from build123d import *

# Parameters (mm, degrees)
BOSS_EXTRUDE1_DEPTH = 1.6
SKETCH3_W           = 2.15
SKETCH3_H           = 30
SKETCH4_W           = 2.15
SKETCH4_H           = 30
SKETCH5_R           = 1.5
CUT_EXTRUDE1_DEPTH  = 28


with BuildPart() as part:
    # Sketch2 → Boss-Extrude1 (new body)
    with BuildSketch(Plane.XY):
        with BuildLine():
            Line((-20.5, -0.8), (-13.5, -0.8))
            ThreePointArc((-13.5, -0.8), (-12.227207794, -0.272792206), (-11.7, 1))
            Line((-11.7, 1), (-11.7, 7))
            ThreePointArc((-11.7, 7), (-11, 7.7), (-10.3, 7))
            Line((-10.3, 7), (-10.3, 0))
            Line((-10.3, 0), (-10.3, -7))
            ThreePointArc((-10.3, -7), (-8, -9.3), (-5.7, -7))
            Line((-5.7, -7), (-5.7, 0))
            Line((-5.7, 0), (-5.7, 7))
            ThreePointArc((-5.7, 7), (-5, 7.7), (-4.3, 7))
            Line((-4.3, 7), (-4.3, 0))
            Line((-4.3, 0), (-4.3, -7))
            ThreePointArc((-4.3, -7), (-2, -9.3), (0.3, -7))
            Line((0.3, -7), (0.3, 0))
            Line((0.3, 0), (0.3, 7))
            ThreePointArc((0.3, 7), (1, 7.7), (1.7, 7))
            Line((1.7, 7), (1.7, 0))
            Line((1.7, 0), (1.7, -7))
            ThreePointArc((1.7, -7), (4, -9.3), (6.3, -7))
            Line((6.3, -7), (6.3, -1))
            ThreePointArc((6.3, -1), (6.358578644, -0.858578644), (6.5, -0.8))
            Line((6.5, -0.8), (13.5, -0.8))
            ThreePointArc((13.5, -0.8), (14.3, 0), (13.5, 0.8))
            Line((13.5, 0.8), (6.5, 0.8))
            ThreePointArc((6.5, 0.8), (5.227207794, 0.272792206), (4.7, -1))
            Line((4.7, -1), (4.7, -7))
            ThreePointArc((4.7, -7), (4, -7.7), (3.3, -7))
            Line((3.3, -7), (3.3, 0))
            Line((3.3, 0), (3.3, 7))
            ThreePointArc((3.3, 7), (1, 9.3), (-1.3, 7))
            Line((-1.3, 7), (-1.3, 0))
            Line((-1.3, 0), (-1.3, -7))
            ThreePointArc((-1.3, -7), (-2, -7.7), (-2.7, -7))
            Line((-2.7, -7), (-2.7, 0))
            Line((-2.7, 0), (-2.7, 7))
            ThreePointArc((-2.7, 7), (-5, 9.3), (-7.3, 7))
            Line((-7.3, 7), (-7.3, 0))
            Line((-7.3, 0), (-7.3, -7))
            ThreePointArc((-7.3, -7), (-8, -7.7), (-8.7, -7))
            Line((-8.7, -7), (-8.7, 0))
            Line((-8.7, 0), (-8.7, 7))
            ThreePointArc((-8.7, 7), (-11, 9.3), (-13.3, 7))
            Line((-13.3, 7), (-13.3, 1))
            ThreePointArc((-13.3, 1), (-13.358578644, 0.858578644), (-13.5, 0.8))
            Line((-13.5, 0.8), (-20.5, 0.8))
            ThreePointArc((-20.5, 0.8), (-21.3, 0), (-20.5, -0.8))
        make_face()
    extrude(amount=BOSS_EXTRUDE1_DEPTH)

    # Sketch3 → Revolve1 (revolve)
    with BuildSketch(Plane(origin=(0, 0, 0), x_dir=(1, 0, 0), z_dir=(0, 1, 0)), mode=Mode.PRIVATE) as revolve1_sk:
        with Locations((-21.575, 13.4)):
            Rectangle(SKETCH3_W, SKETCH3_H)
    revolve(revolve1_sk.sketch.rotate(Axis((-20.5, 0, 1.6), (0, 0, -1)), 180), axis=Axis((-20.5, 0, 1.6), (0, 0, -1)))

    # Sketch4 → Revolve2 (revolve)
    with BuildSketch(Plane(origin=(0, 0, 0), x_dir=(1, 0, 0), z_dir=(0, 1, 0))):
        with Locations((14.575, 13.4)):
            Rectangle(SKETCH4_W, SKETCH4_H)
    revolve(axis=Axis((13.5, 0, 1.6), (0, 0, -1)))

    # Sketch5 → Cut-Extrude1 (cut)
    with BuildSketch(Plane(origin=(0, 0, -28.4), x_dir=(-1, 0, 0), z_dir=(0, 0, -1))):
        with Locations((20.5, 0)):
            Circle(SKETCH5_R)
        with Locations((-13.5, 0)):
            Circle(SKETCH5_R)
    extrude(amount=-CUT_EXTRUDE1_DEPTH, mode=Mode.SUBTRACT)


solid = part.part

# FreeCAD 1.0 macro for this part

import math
import FreeCAD as App
import Part
import Sketcher

V = App.Vector


def add_polygon(sketch, points):
    """Adds a closed chain of lines whose ends are joined by coincident constraints."""
    first, n = sketch.GeometryCount, len(points)
    for a, b in zip(points, points[1:] + points[:1]):
        sketch.addGeometry(Part.LineSegment(App.Vector(*a, 0), App.Vector(*b, 0)), False)
    for i in range(n):
        sketch.addConstraint(Sketcher.Constraint("Coincident", first + i, 2, first + (i + 1) % n, 1))

doc = App.newDocument("Part")
body = doc.addObject("PartDesign::Body", "Body")

# Sketch on XY plane
sketch1 = body.newObject("Sketcher::SketchObject", "Sketch")
sketch1.AttachmentSupport = (doc.getObject("XY_Plane"), [""])
sketch1.MapMode = "FlatFace"
sketch1.addGeometry(Part.LineSegment(V(-20.5, -0.8, 0), V(-13.5, -0.8, 0)), False)
sketch1.addGeometry(Part.ArcOfCircle(Part.Circle(V(-13.5, 1, 0), V(0, 0, 1), 1.8), math.radians(-90), math.radians(0)), False)
sketch1.addGeometry(Part.LineSegment(V(-11.7, 1, 0), V(-11.7, 7, 0)), False)
sketch1.addGeometry(Part.ArcOfCircle(Part.Circle(V(-11, 7, 0), V(0, 0, 1), 0.7), math.radians(0), math.radians(180)), False)
sketch1.addGeometry(Part.LineSegment(V(-10.3, 7, 0), V(-10.3, -7, 0)), False)
sketch1.addGeometry(Part.ArcOfCircle(Part.Circle(V(-8, -7, 0), V(0, 0, 1), 2.3), math.radians(180), math.radians(360)), False)
sketch1.addGeometry(Part.LineSegment(V(-5.7, -7, 0), V(-5.7, 7, 0)), False)
sketch1.addGeometry(Part.ArcOfCircle(Part.Circle(V(-5, 7, 0), V(0, 0, 1), 0.7), math.radians(0), math.radians(180)), False)
sketch1.addGeometry(Part.LineSegment(V(-4.3, 7, 0), V(-4.3, -7, 0)), False)
sketch1.addGeometry(Part.ArcOfCircle(Part.Circle(V(-2, -7, 0), V(0, 0, 1), 2.3), math.radians(180), math.radians(360)), False)
sketch1.addGeometry(Part.LineSegment(V(0.3, -7, 0), V(0.3, 7, 0)), False)
sketch1.addGeometry(Part.ArcOfCircle(Part.Circle(V(1, 7, 0), V(0, 0, 1), 0.7), math.radians(0), math.radians(180)), False)
sketch1.addGeometry(Part.LineSegment(V(1.7, 7, 0), V(1.7, -7, 0)), False)
sketch1.addGeometry(Part.ArcOfCircle(Part.Circle(V(4, -7, 0), V(0, 0, 1), 2.3), math.radians(180), math.radians(360)), False)
sketch1.addGeometry(Part.LineSegment(V(6.3, -7, 0), V(6.3, -1, 0)), False)
sketch1.addGeometry(Part.ArcOfCircle(Part.Circle(V(6.5, -1, 0), V(0, 0, 1), 0.2), math.radians(90), math.radians(180)), False)
sketch1.addGeometry(Part.LineSegment(V(6.5, -0.8, 0), V(13.5, -0.8, 0)), False)
sketch1.addGeometry(Part.ArcOfCircle(Part.Circle(V(13.5, 0, 0), V(0, 0, 1), 0.8), math.radians(-90), math.radians(90)), False)
sketch1.addGeometry(Part.LineSegment(V(13.5, 0.8, 0), V(6.5, 0.8, 0)), False)
sketch1.addGeometry(Part.ArcOfCircle(Part.Circle(V(6.5, -1, 0), V(0, 0, 1), 1.8), math.radians(90), math.radians(180)), False)
sketch1.addGeometry(Part.LineSegment(V(4.7, -1, 0), V(4.7, -7, 0)), False)
sketch1.addGeometry(Part.ArcOfCircle(Part.Circle(V(4, -7, 0), V(0, 0, 1), 0.7), math.radians(180), math.radians(360)), False)
sketch1.addGeometry(Part.LineSegment(V(3.3, -7, 0), V(3.3, 7, 0)), False)
sketch1.addGeometry(Part.ArcOfCircle(Part.Circle(V(1, 7, 0), V(0, 0, 1), 2.3), math.radians(0), math.radians(180)), False)
sketch1.addGeometry(Part.LineSegment(V(-1.3, 7, 0), V(-1.3, -7, 0)), False)
sketch1.addGeometry(Part.ArcOfCircle(Part.Circle(V(-2, -7, 0), V(0, 0, 1), 0.7), math.radians(180), math.radians(360)), False)
sketch1.addGeometry(Part.LineSegment(V(-2.7, -7, 0), V(-2.7, 7, 0)), False)
sketch1.addGeometry(Part.ArcOfCircle(Part.Circle(V(-5, 7, 0), V(0, 0, 1), 2.3), math.radians(0), math.radians(180)), False)
sketch1.addGeometry(Part.LineSegment(V(-7.3, 7, 0), V(-7.3, -7, 0)), False)
sketch1.addGeometry(Part.ArcOfCircle(Part.Circle(V(-8, -7, 0), V(0, 0, 1), 0.7), math.radians(180), math.radians(360)), False)
sketch1.addGeometry(Part.LineSegment(V(-8.7, -7, 0), V(-8.7, 7, 0)), False)
sketch1.addGeometry(Part.ArcOfCircle(Part.Circle(V(-11, 7, 0), V(0, 0, 1), 2.3), math.radians(0), math.radians(180)), False)
sketch1.addGeometry(Part.LineSegment(V(-13.3, 7, 0), V(-13.3, 1, 0)), False)
sketch1.addGeometry(Part.ArcOfCircle(Part.Circle(V(-13.5, 1, 0), V(0, 0, 1), 0.2), math.radians(-90), math.radians(0)), False)
sketch1.addGeometry(Part.LineSegment(V(-13.5, 0.8, 0), V(-20.5, 0.8, 0)), False)
sketch1.addGeometry(Part.ArcOfCircle(Part.Circle(V(-20.5, 0, 0), V(0, 0, 1), 0.8), math.radians(90), math.radians(270)), False)
sketch1.addConstraint(Sketcher.Constraint("Tangent", 0, 2, 1, 1))
sketch1.addConstraint(Sketcher.Constraint("Tangent", 1, 2, 2, 1))
sketch1.addConstraint(Sketcher.Constraint("Tangent", 2, 2, 3, 2))
sketch1.addConstraint(Sketcher.Constraint("Tangent", 3, 1, 4, 1))
sketch1.addConstraint(Sketcher.Constraint("Tangent", 4, 2, 5, 1))
sketch1.addConstraint(Sketcher.Constraint("Tangent", 5, 2, 6, 1))
sketch1.addConstraint(Sketcher.Constraint("Tangent", 6, 2, 7, 2))
sketch1.addConstraint(Sketcher.Constraint("Tangent", 7, 1, 8, 1))
sketch1.addConstraint(Sketcher.Constraint("Tangent", 8, 2, 9, 1))
sketch1.addConstraint(Sketcher.Constraint("Tangent", 9, 2, 10, 1))
sketch1.addConstraint(Sketcher.Constraint("Tangent", 10, 2, 11, 2))
sketch1.addConstraint(Sketcher.Constraint("Tangent", 11, 1, 12, 1))
sketch1.addConstraint(Sketcher.Constraint("Tangent", 12, 2, 13, 1))
sketch1.addConstraint(Sketcher.Constraint("Tangent", 13, 2, 14, 1))
sketch1.addConstraint(Sketcher.Constraint("Tangent", 14, 2, 15, 2))
sketch1.addConstraint(Sketcher.Constraint("Tangent", 15, 1, 16, 1))
sketch1.addConstraint(Sketcher.Constraint("Tangent", 16, 2, 17, 1))
sketch1.addConstraint(Sketcher.Constraint("Tangent", 17, 2, 18, 1))
sketch1.addConstraint(Sketcher.Constraint("Tangent", 18, 2, 19, 1))
sketch1.addConstraint(Sketcher.Constraint("Tangent", 19, 2, 20, 1))
sketch1.addConstraint(Sketcher.Constraint("Tangent", 20, 2, 21, 2))
sketch1.addConstraint(Sketcher.Constraint("Tangent", 21, 1, 22, 1))
sketch1.addConstraint(Sketcher.Constraint("Tangent", 22, 2, 23, 1))
sketch1.addConstraint(Sketcher.Constraint("Tangent", 23, 2, 24, 1))
sketch1.addConstraint(Sketcher.Constraint("Tangent", 24, 2, 25, 2))
sketch1.addConstraint(Sketcher.Constraint("Tangent", 25, 1, 26, 1))
sketch1.addConstraint(Sketcher.Constraint("Tangent", 26, 2, 27, 1))
sketch1.addConstraint(Sketcher.Constraint("Tangent", 27, 2, 28, 1))
sketch1.addConstraint(Sketcher.Constraint("Tangent", 28, 2, 29, 2))
sketch1.addConstraint(Sketcher.Constraint("Tangent", 29, 1, 30, 1))
sketch1.addConstraint(Sketcher.Constraint("Tangent", 30, 2, 31, 1))
sketch1.addConstraint(Sketcher.Constraint("Tangent", 31, 2, 32, 1))
sketch1.addConstraint(Sketcher.Constraint("Tangent", 32, 2, 33, 2))
sketch1.addConstraint(Sketcher.Constraint("Tangent", 33, 1, 34, 1))
sketch1.addConstraint(Sketcher.Constraint("Tangent", 34, 2, 35, 1))
sketch1.addConstraint(Sketcher.Constraint("Tangent", 35, 2, 0, 1))
sketch1.addConstraint(Sketcher.Constraint("Horizontal", 0))
sketch1.addConstraint(Sketcher.Constraint("Vertical", 2))
sketch1.addConstraint(Sketcher.Constraint("Vertical", 4))
sketch1.addConstraint(Sketcher.Constraint("Vertical", 6))
sketch1.addConstraint(Sketcher.Constraint("Vertical", 8))
sketch1.addConstraint(Sketcher.Constraint("Vertical", 10))
sketch1.addConstraint(Sketcher.Constraint("Vertical", 12))
sketch1.addConstraint(Sketcher.Constraint("Vertical", 14))
sketch1.addConstraint(Sketcher.Constraint("Horizontal", 16))
sketch1.addConstraint(Sketcher.Constraint("Horizontal", 18))
sketch1.addConstraint(Sketcher.Constraint("Vertical", 20))
sketch1.addConstraint(Sketcher.Constraint("Vertical", 22))
sketch1.addConstraint(Sketcher.Constraint("Vertical", 24))
sketch1.addConstraint(Sketcher.Constraint("Vertical", 26))
sketch1.addConstraint(Sketcher.Constraint("Vertical", 28))
sketch1.addConstraint(Sketcher.Constraint("Vertical", 30))
sketch1.addConstraint(Sketcher.Constraint("Vertical", 32))
sketch1.addConstraint(Sketcher.Constraint("Horizontal", 34))
sketch1.addConstraint(Sketcher.Constraint("Coincident", 19, 3, 15, 3))
sketch1.addConstraint(Sketcher.Constraint("Coincident", 21, 3, 13, 3))
sketch1.addConstraint(Sketcher.Constraint("Coincident", 23, 3, 11, 3))
sketch1.addConstraint(Sketcher.Constraint("Coincident", 25, 3, 9, 3))
sketch1.addConstraint(Sketcher.Constraint("Coincident", 27, 3, 7, 3))
sketch1.addConstraint(Sketcher.Constraint("Coincident", 29, 3, 5, 3))
sketch1.addConstraint(Sketcher.Constraint("Coincident", 31, 3, 3, 3))
sketch1.addConstraint(Sketcher.Constraint("Coincident", 33, 3, 1, 3))
sketch1.addConstraint(Sketcher.Constraint("Equal", 3, 7))
sketch1.addConstraint(Sketcher.Constraint("Equal", 5, 9))
sketch1.addConstraint(Sketcher.Constraint("Equal", 7, 11))
sketch1.addConstraint(Sketcher.Constraint("Equal", 9, 13))
sketch1.addConstraint(Sketcher.Constraint("Equal", 1, 19))
sketch1.addConstraint(Sketcher.Constraint("Equal", 11, 21))
sketch1.addConstraint(Sketcher.Constraint("Symmetric", 0, 2, 17, 2, -1, 1))
sketch1.addConstraint(Sketcher.Constraint("PointOnObject", 17, 3, -1))
sketch1.addConstraint(Sketcher.Constraint("Horizontal", 3, 3, 7, 3))
sketch1.addConstraint(Sketcher.Constraint("Horizontal", 5, 3, 9, 3))
sketch1.addConstraint(Sketcher.Constraint("Horizontal", 7, 3, 11, 3))
sketch1.addConstraint(Sketcher.Constraint("Horizontal", 9, 3, 13, 3))
sketch1.addConstraint(Sketcher.Constraint("Equal", 0, 16))
sketch1.addConstraint(Sketcher.Constraint("Equal", 2, 14))
sketch1.addConstraint(Sketcher.Constraint("Radius", 1, 1.8))
sketch1.addConstraint(Sketcher.Constraint("Radius", 3, 0.7))
sketch1.addConstraint(Sketcher.Constraint("Radius", 5, 2.3))
sketch1.addConstraint(Sketcher.Constraint("DistanceX", 0, 1, 0, 2, 7.0))
sketch1.addConstraint(Sketcher.Constraint("DistanceY", 2, 1, 2, 2, 6.0))
pad1 = body.newObject("PartDesign::Pad", "Pad")
pad1.Profile = sketch1
pad1.Length = 1.6

# Sketch on XZ plane
sketch2 = body.newObject("Sketcher::SketchObject", "Sketch001")
sketch2.AttachmentSupport = (doc.getObject("XZ_Plane"), [""])
sketch2.MapMode = "FlatFace"
add_polygon(sketch2, [(-22.6, -28.4), (-22.6, 1.6), (-20.5, 1.6), (-20.5, -28.4)])  # lines 0-3
sketch2.addGeometry(Part.LineSegment(V(-20.5, 1.6, 0), V(-20.5, -28.4, 0)), True)  # axis
sketch2.addConstraint(Sketcher.Constraint("Vertical", 0))
sketch2.addConstraint(Sketcher.Constraint("Horizontal", 1))
sketch2.addConstraint(Sketcher.Constraint("Vertical", 2))
sketch2.addConstraint(Sketcher.Constraint("Horizontal", 3))
sketch2.addConstraint(Sketcher.Constraint("Vertical", 4))
sketch2.addConstraint(Sketcher.Constraint("Coincident", 4, 1, 1, 2))
sketch2.addConstraint(Sketcher.Constraint("Horizontal", 3, 2, 4, 2))
sketch2.addConstraint(Sketcher.Constraint("DistanceY", 0, 1, 0, 2, 30.0))
sketch2.addConstraint(Sketcher.Constraint("DistanceX", 1, 1, 1, 2, 2.15))
sketch2.addConstraint(Sketcher.Constraint("DistanceY", -1, 1, 0, 2, 1.6))
sketch2.addConstraint(Sketcher.Constraint("DistanceX", 1, 2, -1, 1, 20.5))
revolution = body.newObject("PartDesign::Revolution", "Revolution")
revolution.Profile = sketch2
revolution.ReferenceAxis = (sketch2, ["Axis0"])
revolution.Angle = 360

# Sketch on XZ plane
sketch3 = body.newObject("Sketcher::SketchObject", "Sketch002")
sketch3.AttachmentSupport = (doc.getObject("XZ_Plane"), [""])
sketch3.MapMode = "FlatFace"
add_polygon(sketch3, [(13.5, -28.4), (13.5, 1.6), (15.7, 1.6), (15.7, -28.4)])  # lines 0-3
sketch3.addGeometry(Part.LineSegment(V(13.5, 1.6, 0), V(13.5, -28.4, 0)), True)  # axis
sketch3.addConstraint(Sketcher.Constraint("Vertical", 0))
sketch3.addConstraint(Sketcher.Constraint("Horizontal", 1))
sketch3.addConstraint(Sketcher.Constraint("Vertical", 2))
sketch3.addConstraint(Sketcher.Constraint("Horizontal", 3))
sketch3.addConstraint(Sketcher.Constraint("Vertical", 4))
sketch3.addConstraint(Sketcher.Constraint("Coincident", 4, 1, 0, 2))
sketch3.addConstraint(Sketcher.Constraint("Horizontal", 2, 2, 4, 2))
sketch3.addConstraint(Sketcher.Constraint("DistanceY", 0, 1, 0, 2, 30.0))
sketch3.addConstraint(Sketcher.Constraint("DistanceX", 1, 1, 1, 2, 2.15))
sketch3.addConstraint(Sketcher.Constraint("DistanceX", -1, 1, 0, 2, 13.5))
sketch3.addConstraint(Sketcher.Constraint("DistanceY", -1, 1, 0, 2, 1.6))
revolution2 = body.newObject("PartDesign::Revolution", "Revolution001")
revolution2.Profile = sketch3
revolution2.ReferenceAxis = (sketch3, ["Axis0"])
revolution2.Angle = 360

# Sketch on XY plane
sketch4 = body.newObject("Sketcher::SketchObject", "Sketch003")
sketch4.AttachmentSupport = (doc.getObject("XY_Plane"), [""])
sketch4.MapMode = "FlatFace"
sketch4.AttachmentOffset = App.Placement(V(0, 0, -28.4), App.Rotation())
sketch4.addGeometry(Part.Circle(V(-20.5, 0, 0), V(0, 0, 1), 1.5), False)
sketch4.addGeometry(Part.Circle(V(13.5, 0, 0), V(0, 0, 1), 1.5), False)
sketch4.addConstraint(Sketcher.Constraint("Equal", 0, 1))
sketch4.addConstraint(Sketcher.Constraint("PointOnObject", 0, 3, -1))
sketch4.addConstraint(Sketcher.Constraint("PointOnObject", 1, 3, -1))
sketch4.addConstraint(Sketcher.Constraint("Diameter", 0, 3.0))
sketch4.addConstraint(Sketcher.Constraint("DistanceX", 0, 3, 1, 3, 34.0))
sketch4.addConstraint(Sketcher.Constraint("DistanceX", 0, 3, -1, 1, 20.5))
pocket1 = body.newObject("PartDesign::Pocket", "Pocket")
pocket1.Profile = sketch4
pocket1.Length = 28
pocket1.Reversed = True

doc.recompute()
